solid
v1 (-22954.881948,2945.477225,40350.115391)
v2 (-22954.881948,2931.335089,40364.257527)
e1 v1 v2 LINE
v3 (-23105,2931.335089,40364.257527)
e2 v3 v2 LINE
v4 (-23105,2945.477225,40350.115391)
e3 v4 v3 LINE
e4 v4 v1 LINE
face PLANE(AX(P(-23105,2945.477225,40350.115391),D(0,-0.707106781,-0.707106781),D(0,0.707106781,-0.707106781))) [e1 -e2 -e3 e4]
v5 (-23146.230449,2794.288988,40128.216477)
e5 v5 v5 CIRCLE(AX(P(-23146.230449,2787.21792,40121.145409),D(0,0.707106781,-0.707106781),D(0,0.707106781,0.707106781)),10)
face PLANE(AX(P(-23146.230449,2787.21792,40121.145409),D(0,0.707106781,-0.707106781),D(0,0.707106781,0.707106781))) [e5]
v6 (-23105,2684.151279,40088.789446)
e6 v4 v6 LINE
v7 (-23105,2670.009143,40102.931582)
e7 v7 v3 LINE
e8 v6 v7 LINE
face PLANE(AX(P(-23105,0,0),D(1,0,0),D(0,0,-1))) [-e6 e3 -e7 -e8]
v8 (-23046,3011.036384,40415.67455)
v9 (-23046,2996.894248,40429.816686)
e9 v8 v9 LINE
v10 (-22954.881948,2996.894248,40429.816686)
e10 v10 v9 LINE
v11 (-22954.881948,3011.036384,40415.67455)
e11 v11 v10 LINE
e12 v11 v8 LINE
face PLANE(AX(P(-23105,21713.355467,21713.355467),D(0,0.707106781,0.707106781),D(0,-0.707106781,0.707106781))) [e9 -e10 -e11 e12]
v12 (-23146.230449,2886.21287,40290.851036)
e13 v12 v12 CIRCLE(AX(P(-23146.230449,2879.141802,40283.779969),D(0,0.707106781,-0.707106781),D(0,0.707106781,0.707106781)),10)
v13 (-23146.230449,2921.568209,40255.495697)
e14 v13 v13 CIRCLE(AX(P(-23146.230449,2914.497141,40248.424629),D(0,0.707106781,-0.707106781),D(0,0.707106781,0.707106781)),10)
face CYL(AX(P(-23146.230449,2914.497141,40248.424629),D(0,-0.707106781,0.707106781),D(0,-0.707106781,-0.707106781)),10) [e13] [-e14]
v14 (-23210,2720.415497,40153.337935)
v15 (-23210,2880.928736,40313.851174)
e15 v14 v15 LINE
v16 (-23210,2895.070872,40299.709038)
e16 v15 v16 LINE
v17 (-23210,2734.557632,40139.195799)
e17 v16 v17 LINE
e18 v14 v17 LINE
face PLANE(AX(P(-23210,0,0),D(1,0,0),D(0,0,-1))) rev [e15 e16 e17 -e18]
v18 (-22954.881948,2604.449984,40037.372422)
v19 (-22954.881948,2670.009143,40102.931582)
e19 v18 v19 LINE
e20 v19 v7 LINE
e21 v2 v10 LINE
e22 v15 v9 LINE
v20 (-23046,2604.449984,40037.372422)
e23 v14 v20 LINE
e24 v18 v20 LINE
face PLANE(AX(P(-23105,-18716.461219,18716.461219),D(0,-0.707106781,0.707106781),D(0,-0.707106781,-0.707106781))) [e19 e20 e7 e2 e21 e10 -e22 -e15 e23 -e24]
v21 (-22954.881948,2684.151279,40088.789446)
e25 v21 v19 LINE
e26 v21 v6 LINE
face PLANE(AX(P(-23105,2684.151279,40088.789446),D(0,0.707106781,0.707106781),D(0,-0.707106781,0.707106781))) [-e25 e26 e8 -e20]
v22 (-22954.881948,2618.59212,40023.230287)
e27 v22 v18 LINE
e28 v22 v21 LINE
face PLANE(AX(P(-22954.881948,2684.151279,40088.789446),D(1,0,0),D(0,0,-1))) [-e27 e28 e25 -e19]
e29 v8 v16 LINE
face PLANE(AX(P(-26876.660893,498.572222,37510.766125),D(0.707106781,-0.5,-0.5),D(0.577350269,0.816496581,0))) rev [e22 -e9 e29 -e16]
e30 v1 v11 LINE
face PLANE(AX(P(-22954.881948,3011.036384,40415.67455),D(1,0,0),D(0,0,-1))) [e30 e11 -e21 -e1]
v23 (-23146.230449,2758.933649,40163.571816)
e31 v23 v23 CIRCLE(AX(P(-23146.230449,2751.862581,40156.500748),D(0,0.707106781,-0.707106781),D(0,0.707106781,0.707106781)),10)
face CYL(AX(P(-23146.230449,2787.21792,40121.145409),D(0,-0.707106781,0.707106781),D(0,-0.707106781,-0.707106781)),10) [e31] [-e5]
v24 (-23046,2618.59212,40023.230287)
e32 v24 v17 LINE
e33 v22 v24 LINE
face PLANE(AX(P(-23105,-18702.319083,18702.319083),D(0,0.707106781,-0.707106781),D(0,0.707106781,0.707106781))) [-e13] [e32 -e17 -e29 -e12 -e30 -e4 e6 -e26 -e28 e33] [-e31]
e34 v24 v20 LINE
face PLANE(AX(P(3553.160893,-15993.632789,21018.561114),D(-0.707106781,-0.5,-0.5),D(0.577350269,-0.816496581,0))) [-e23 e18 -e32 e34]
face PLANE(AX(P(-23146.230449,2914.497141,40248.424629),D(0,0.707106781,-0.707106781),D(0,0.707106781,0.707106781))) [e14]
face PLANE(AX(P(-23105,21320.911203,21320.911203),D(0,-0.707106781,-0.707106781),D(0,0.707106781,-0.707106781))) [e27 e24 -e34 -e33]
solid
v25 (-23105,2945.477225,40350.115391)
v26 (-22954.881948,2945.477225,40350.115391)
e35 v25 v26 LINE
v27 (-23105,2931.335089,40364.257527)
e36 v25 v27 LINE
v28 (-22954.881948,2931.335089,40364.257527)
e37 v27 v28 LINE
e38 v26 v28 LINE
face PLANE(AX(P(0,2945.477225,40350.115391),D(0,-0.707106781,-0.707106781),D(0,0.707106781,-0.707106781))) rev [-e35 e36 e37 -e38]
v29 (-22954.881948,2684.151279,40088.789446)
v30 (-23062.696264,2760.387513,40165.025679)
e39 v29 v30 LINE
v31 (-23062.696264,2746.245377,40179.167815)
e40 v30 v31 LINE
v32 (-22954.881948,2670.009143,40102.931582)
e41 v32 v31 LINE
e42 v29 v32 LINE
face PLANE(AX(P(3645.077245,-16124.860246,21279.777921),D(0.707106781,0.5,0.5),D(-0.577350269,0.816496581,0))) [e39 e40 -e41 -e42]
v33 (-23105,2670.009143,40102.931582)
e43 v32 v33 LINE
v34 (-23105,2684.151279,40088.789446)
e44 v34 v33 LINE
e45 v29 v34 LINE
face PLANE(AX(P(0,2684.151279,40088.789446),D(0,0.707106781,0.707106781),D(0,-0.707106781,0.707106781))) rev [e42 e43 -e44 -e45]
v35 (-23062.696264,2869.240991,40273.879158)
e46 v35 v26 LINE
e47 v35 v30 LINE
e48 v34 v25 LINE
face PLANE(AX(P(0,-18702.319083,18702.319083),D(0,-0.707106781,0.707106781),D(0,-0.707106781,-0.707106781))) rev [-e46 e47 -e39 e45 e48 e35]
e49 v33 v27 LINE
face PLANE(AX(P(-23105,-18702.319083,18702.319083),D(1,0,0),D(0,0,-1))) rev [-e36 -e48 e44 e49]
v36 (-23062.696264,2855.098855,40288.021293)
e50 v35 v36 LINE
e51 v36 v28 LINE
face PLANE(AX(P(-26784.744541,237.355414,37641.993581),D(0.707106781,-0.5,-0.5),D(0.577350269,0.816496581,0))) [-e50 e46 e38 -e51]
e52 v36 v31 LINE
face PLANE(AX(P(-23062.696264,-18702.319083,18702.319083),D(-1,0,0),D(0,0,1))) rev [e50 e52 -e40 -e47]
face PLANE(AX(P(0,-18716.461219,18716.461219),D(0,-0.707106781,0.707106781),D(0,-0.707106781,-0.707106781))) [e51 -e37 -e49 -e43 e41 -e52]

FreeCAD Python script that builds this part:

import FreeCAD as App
import Part
import Sketcher
from FreeCAD import Vector

doc = App.newDocument("Part")
body = doc.addObject("PartDesign::Body", "Body")

# Sketch on YZ plane
sketch1 = body.newObject("Sketcher::SketchObject", "Sketch")
sketch1.AttachmentSupport = (doc.getObject("YZ_Plane"), [""])
sketch1.MapMode = "FlatFace"
sketch1.AttachmentOffset = App.Placement(Vector(0, 0, -23110), App.Rotation())
sketch1.addGeometry(Part.LineSegment(Vector(3011.036384, 40415.67455, 0), Vector(2996.894248, 40429.816686, 0)), False)
sketch1.addGeometry(Part.LineSegment(Vector(2996.894248, 40429.816686, 0), Vector(2982.752112, 40415.67455, 0)), False)
sketch1.addGeometry(Part.LineSegment(Vector(2982.752112, 40415.67455, 0), Vector(2604.449984, 40037.372422, 0)), False)
sketch1.addGeometry(Part.LineSegment(Vector(2604.449984, 40037.372422, 0), Vector(2618.59212, 40023.230287, 0)), False)
sketch1.addGeometry(Part.LineSegment(Vector(2618.59212, 40023.230287, 0), Vector(2632.734256, 40037.372422, 0)), False)
sketch1.addGeometry(Part.LineSegment(Vector(2632.734256, 40037.372422, 0), Vector(3011.036384, 40415.67455, 0)), False)
sketch1.addConstraint(Sketcher.Constraint("Coincident", 0, 2, 1, 1))
sketch1.addConstraint(Sketcher.Constraint("Coincident", 1, 2, 2, 1))
sketch1.addConstraint(Sketcher.Constraint("Coincident", 2, 2, 3, 1))
sketch1.addConstraint(Sketcher.Constraint("Coincident", 3, 2, 4, 1))
sketch1.addConstraint(Sketcher.Constraint("Coincident", 4, 2, 5, 1))
sketch1.addConstraint(Sketcher.Constraint("Coincident", 5, 2, 0, 1))
sketch1.addConstraint(Sketcher.Constraint("Perpendicular", 0, 1))
sketch1.addConstraint(Sketcher.Constraint("Parallel", 1, 2))
sketch1.addConstraint(Sketcher.Constraint("Perpendicular", 2, 3))
sketch1.addConstraint(Sketcher.Constraint("Perpendicular", 3, 4))
sketch1.addConstraint(Sketcher.Constraint("Parallel", 4, 5))
sketch1.addConstraint(Sketcher.Constraint("Horizontal", 2, 2, 4, 2))
sketch1.addConstraint(Sketcher.Constraint("Horizontal", 1, 2, 5, 2))
sketch1.addConstraint(Sketcher.Constraint("Equal", 0, 1))
sketch1.addConstraint(Sketcher.Constraint("Distance", 0, 20.0))
sketch1.addConstraint(Sketcher.Constraint("Distance", 2, 535.0))
sketch1.addConstraint(Sketcher.Constraint("DistanceX", -1, 1, 0, 2, 2996.894248))
sketch1.addConstraint(Sketcher.Constraint("DistanceY", -1, 1, 1, 2, 40415.67455))
pad1 = body.newObject("PartDesign::Pad", "Pad")
pad1.Profile = sketch1
pad1.Type = "TwoLengths"
pad1.Length = 5
pad1.Length2 = 100

# Sketch on an angled plane
sketch2 = body.newObject("Sketcher::SketchObject", "Sketch001")
sketch2.Placement = App.Placement(Vector(0, -18716.461219, 18716.461219), App.Rotation(Vector(1, 0, 0), Vector(0, 0.707106781, 0.707106781), Vector(0, -0.707106781, 0.707106781), "ZXY"))
sketch2.addGeometry(Part.LineSegment(Vector(-23105, 30707, 0), Vector(-23105, 30615, 0)), False)
sketch2.addGeometry(Part.LineSegment(Vector(-23105, 30615, 0), Vector(-22955, 30615, 0)), False)
sketch2.addGeometry(Part.LineSegment(Vector(-22955, 30615, 0), Vector(-22955, 30707, 0)), False)
sketch2.addGeometry(Part.LineSegment(Vector(-22955, 30707, 0), Vector(-23105, 30707, 0)), False)
sketch2.addGeometry(Part.LineSegment(Vector(-23105, 30245, 0), Vector(-23105, 30152, 0)), False)
sketch2.addGeometry(Part.LineSegment(Vector(-23105, 30152, 0), Vector(-22955, 30152, 0)), False)
sketch2.addGeometry(Part.LineSegment(Vector(-22955, 30152, 0), Vector(-22955, 30245, 0)), False)
sketch2.addGeometry(Part.LineSegment(Vector(-22955, 30245, 0), Vector(-23105, 30245, 0)), False)
sketch2.addConstraint(Sketcher.Constraint("Coincident", 0, 2, 1, 1))
sketch2.addConstraint(Sketcher.Constraint("Coincident", 1, 2, 2, 1))
sketch2.addConstraint(Sketcher.Constraint("Coincident", 2, 2, 3, 1))
sketch2.addConstraint(Sketcher.Constraint("Coincident", 3, 2, 0, 1))
sketch2.addConstraint(Sketcher.Constraint("Coincident", 4, 2, 5, 1))
sketch2.addConstraint(Sketcher.Constraint("Coincident", 5, 2, 6, 1))
sketch2.addConstraint(Sketcher.Constraint("Coincident", 6, 2, 7, 1))
sketch2.addConstraint(Sketcher.Constraint("Coincident", 7, 2, 4, 1))
sketch2.addConstraint(Sketcher.Constraint("Vertical", 0))
sketch2.addConstraint(Sketcher.Constraint("Horizontal", 1))
sketch2.addConstraint(Sketcher.Constraint("Vertical", 2))
sketch2.addConstraint(Sketcher.Constraint("Horizontal", 3))
sketch2.addConstraint(Sketcher.Constraint("Vertical", 4))
sketch2.addConstraint(Sketcher.Constraint("Horizontal", 5))
sketch2.addConstraint(Sketcher.Constraint("Vertical", 6))
sketch2.addConstraint(Sketcher.Constraint("Horizontal", 7))
sketch2.addConstraint(Sketcher.Constraint("Vertical", 3, 2, 4, 2))
sketch2.addConstraint(Sketcher.Constraint("Vertical", 2, 2, 5, 2))
sketch2.addConstraint(Sketcher.Constraint("Equal", 2, 4))
sketch2.addConstraint(Sketcher.Constraint("DistanceX", 0, 2, -1, 1, 23105.0))
sketch2.addConstraint(Sketcher.Constraint("DistanceY", 4, 2, 3, 2, 555.0))
sketch2.addConstraint(Sketcher.Constraint("DistanceX", 1, 1, 1, 2, 150.118052))
sketch2.addConstraint(Sketcher.Constraint("DistanceY", 0, 2, 0, 1, 92.714652))
sketch2.addConstraint(Sketcher.Constraint("DistanceY", -1, 1, 0, 2, 30614.607118))
pad2 = body.newObject("PartDesign::Pad", "Pad001")
pad2.Profile = sketch2
pad2.Length = 20
pad2.Reversed = True

# Sketch on an angled plane
sketch3 = body.newObject("Sketcher::SketchObject", "Sketch002")
sketch3.Placement = App.Placement(Vector(0, -18702.319083, 18702.319083), App.Rotation(Vector(1, 0, 0), Vector(0, -0.707106781, -0.707106781), Vector(0, 0.707106781, -0.707106781), "ZXY"))
sketch3.addGeometry(Part.Circle(Vector(-23146, -30341, 0), Vector(0, 0, 1), 10), False)
sketch3.addGeometry(Part.Circle(Vector(-23146, -30521, 0), Vector(0, 0, 1), 10), False)
sketch3.addConstraint(Sketcher.Constraint("Equal", 0, 1))
sketch3.addConstraint(Sketcher.Constraint("Vertical", 0, 3, 1, 3))
sketch3.addConstraint(Sketcher.Constraint("Diameter", 0, 20.0))
sketch3.addConstraint(Sketcher.Constraint("DistanceY", 1, 3, 0, 3, 180.0))
sketch3.addConstraint(Sketcher.Constraint("DistanceX", 0, 3, -1, 1, 23146.230449))
sketch3.addConstraint(Sketcher.Constraint("DistanceY", 0, 3, -1, 1, 30340.794664))
pad3 = body.newObject("PartDesign::Pad", "Pad002")
pad3.Profile = sketch3
pad3.Length = 50

# Sketch on an angled plane
sketch4 = body.newObject("Sketcher::SketchObject", "Sketch003")
sketch4.Placement = App.Placement(Vector(0, -18716.461219, 18716.461219), App.Rotation(Vector(1, 0, 0), Vector(0, 0.707106781, 0.707106781), Vector(0, -0.707106781, 0.707106781), "ZXY"))
sketch4.addGeometry(Part.LineSegment(Vector(-23210, 30707, 0), Vector(-23210, 30543, 0)), False)
sketch4.addGeometry(Part.LineSegment(Vector(-23210, 30543, 0), Vector(-23046, 30707, 0)), False)
sketch4.addGeometry(Part.LineSegment(Vector(-23046, 30707, 0), Vector(-23210, 30707, 0)), False)
sketch4.addGeometry(Part.LineSegment(Vector(-23210, 30152, 0), Vector(-23046, 30152, 0)), False)
sketch4.addGeometry(Part.LineSegment(Vector(-23046, 30152, 0), Vector(-23210, 30316, 0)), False)
sketch4.addGeometry(Part.LineSegment(Vector(-23210, 30316, 0), Vector(-23210, 30152, 0)), False)
sketch4.addConstraint(Sketcher.Constraint("Coincident", 0, 2, 1, 1))
sketch4.addConstraint(Sketcher.Constraint("Coincident", 1, 2, 2, 1))
sketch4.addConstraint(Sketcher.Constraint("Coincident", 2, 2, 0, 1))
sketch4.addConstraint(Sketcher.Constraint("Coincident", 3, 2, 4, 1))
sketch4.addConstraint(Sketcher.Constraint("Coincident", 4, 2, 5, 1))
sketch4.addConstraint(Sketcher.Constraint("Coincident", 5, 2, 3, 1))
sketch4.addConstraint(Sketcher.Constraint("Vertical", 0))
sketch4.addConstraint(Sketcher.Constraint("Horizontal", 2))
sketch4.addConstraint(Sketcher.Constraint("Horizontal", 3))
sketch4.addConstraint(Sketcher.Constraint("Vertical", 5))
sketch4.addConstraint(Sketcher.Constraint("Perpendicular", 1, 4))
sketch4.addConstraint(Sketcher.Constraint("Vertical", 1, 2, 3, 2))
sketch4.addConstraint(Sketcher.Constraint("Vertical", 2, 2, 4, 2))
sketch4.addConstraint(Sketcher.Constraint("Equal", 3, 0))
sketch4.addConstraint(Sketcher.Constraint("DistanceX", 2, 2, 2, 1, 164.0))
sketch4.addConstraint(Sketcher.Constraint("DistanceX", 0, 2, -1, 1, 23210.0))
sketch4.addConstraint(Sketcher.Constraint("DistanceY", 3, 2, 0, 2, 391.0))
sketch4.addConstraint(Sketcher.Constraint("DistanceY", -1, 1, 0, 2, 30543.32177))
pocket1 = body.newObject("PartDesign::Pocket", "Pocket")
pocket1.Profile = sketch4
pocket1.Type = "ThroughAll"
body2 = doc.addObject("PartDesign::Body", "Body001")

# Sketch on an angled plane
sketch5 = body2.newObject("Sketcher::SketchObject", "Sketch004")
sketch5.Placement = App.Placement(Vector(0, -18716.461219, 18716.461219), App.Rotation(Vector(1, 0, 0), Vector(0, 0.707106781, 0.707106781), Vector(0, -0.707106781, 0.707106781), "ZXY"))
sketch5.addGeometry(Part.LineSegment(Vector(-23063, 30507, 0), Vector(-22955, 30615, 0)), False)
sketch5.addGeometry(Part.LineSegment(Vector(-22955, 30615, 0), Vector(-23105, 30615, 0)), False)
sketch5.addGeometry(Part.LineSegment(Vector(-23105, 30615, 0), Vector(-23105, 30245, 0)), False)
sketch5.addGeometry(Part.LineSegment(Vector(-23105, 30245, 0), Vector(-22955, 30245, 0)), False)
sketch5.addGeometry(Part.LineSegment(Vector(-22955, 30245, 0), Vector(-23063, 30353, 0)), False)
sketch5.addGeometry(Part.LineSegment(Vector(-23063, 30353, 0), Vector(-23063, 30507, 0)), False)
sketch5.addConstraint(Sketcher.Constraint("Coincident", 0, 2, 1, 1))
sketch5.addConstraint(Sketcher.Constraint("Coincident", 1, 2, 2, 1))
sketch5.addConstraint(Sketcher.Constraint("Coincident", 2, 2, 3, 1))
sketch5.addConstraint(Sketcher.Constraint("Coincident", 3, 2, 4, 1))
sketch5.addConstraint(Sketcher.Constraint("Coincident", 4, 2, 5, 1))
sketch5.addConstraint(Sketcher.Constraint("Coincident", 5, 2, 0, 1))
sketch5.addConstraint(Sketcher.Constraint("Horizontal", 1))
sketch5.addConstraint(Sketcher.Constraint("Vertical", 2))
sketch5.addConstraint(Sketcher.Constraint("Horizontal", 3))
sketch5.addConstraint(Sketcher.Constraint("Vertical", 5))
sketch5.addConstraint(Sketcher.Constraint("Perpendicular", 0, 4))
sketch5.addConstraint(Sketcher.Constraint("Vertical", 0, 2, 3, 2))
sketch5.addConstraint(Sketcher.Constraint("Equal", 0, 4))
sketch5.addConstraint(Sketcher.Constraint("DistanceX", 1, 2, -1, 1, 23105.0))
sketch5.addConstraint(Sketcher.Constraint("DistanceX", 1, 2, 1, 1, 150.118052))
sketch5.addConstraint(Sketcher.Constraint("DistanceY", 2, 2, 2, 1, 369.570696))
sketch5.addConstraint(Sketcher.Constraint("DistanceY", 5, 1, 5, 2, 153.942065))
sketch5.addConstraint(Sketcher.Constraint("DistanceY", -1, 1, 0, 2, 30614.607118))
pad4 = body2.newObject("PartDesign::Pad", "Pad003")
pad4.Profile = sketch5
pad4.Length = 20
pad4.Reversed = True

doc.recompute()
